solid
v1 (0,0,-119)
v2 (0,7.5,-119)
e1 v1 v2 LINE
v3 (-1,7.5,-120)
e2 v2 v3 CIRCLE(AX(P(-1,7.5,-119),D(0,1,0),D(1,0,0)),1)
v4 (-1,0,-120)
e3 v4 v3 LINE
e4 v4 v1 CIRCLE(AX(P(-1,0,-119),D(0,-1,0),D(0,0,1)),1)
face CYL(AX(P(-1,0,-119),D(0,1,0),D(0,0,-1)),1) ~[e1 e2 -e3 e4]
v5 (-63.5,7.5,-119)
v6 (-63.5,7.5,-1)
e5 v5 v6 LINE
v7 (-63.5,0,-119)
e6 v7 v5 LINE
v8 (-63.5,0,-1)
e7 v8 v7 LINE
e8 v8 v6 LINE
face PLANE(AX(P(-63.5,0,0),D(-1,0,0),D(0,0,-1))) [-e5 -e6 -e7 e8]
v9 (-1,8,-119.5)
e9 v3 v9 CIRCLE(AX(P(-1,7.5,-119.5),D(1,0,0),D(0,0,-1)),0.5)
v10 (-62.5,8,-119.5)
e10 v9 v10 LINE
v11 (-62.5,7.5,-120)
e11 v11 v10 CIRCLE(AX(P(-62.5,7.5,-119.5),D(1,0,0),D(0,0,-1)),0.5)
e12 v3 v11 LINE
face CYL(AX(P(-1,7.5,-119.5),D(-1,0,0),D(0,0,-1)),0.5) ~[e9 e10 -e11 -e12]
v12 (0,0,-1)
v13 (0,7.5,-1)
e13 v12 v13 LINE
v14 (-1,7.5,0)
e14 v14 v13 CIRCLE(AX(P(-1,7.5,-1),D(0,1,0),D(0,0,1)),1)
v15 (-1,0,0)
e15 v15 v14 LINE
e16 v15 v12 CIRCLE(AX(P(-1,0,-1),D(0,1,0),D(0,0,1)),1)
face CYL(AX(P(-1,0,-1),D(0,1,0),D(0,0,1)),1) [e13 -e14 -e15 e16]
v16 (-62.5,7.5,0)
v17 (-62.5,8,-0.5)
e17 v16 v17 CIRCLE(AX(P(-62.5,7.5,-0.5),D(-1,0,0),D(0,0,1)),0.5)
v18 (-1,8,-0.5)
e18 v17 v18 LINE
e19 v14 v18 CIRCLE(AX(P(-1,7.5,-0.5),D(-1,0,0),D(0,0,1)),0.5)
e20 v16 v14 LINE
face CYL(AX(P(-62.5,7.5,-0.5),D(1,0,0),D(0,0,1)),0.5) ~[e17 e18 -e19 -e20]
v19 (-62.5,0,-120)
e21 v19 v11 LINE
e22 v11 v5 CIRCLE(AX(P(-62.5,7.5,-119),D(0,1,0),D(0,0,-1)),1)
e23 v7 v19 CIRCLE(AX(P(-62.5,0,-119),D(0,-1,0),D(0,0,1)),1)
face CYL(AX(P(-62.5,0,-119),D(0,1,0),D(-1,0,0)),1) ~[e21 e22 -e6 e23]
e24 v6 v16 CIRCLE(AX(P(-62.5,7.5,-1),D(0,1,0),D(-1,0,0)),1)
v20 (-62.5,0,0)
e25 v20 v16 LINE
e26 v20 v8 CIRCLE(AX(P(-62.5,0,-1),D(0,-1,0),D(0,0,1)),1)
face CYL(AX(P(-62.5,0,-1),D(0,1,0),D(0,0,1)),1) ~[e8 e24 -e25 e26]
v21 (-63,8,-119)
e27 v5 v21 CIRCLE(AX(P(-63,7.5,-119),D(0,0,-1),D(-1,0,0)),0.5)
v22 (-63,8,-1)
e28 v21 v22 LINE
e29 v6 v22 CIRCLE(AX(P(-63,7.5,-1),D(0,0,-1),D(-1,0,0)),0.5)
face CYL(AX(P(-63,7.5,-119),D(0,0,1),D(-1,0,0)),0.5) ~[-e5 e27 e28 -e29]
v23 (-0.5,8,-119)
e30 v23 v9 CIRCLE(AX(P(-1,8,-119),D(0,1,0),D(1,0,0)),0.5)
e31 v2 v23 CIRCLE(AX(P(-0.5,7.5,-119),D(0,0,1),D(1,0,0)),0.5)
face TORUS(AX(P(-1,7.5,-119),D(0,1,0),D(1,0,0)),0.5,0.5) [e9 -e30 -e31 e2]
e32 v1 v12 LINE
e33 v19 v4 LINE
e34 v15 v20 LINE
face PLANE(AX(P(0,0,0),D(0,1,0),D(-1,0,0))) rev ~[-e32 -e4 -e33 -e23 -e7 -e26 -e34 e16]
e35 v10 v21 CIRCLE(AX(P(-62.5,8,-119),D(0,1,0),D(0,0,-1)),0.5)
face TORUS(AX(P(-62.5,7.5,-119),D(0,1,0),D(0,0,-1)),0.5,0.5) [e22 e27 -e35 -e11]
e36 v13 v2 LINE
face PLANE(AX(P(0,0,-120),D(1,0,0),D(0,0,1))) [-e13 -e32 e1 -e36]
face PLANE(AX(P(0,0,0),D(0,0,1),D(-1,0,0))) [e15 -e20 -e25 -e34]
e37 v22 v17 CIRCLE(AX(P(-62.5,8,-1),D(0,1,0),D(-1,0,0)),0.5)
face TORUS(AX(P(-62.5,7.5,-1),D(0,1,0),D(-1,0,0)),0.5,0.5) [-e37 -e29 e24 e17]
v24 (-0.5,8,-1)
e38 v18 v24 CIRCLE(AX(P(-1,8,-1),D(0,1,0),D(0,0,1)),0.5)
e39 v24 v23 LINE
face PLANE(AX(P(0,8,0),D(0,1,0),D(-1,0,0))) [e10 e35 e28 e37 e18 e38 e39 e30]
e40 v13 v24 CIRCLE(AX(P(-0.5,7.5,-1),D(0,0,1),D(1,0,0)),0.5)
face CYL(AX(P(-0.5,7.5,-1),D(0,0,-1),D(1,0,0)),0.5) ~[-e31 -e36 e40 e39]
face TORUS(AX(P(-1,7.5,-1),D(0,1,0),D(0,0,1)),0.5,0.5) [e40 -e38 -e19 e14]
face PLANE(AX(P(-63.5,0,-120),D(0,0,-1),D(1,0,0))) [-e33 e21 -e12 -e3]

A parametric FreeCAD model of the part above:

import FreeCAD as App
import Part
import Sketcher
from FreeCAD import Vector


def edges_at(feature, points):
    """Names of the edges that pass closest to the given points."""
    edges = feature.Shape.Edges
    near = lambda p: min(range(len(edges)), key=lambda i: edges[i].distToShape(Part.Vertex(*p))[0])
    return sorted({f"Edge{near(p) + 1}" for p in points})


def add_polygon(sketch, points):
    """Adds a closed chain of lines whose ends are joined by coincident constraints."""
    first, n = sketch.GeometryCount, len(points)
    for a, b in zip(points, points[1:] + points[:1]):
        sketch.addGeometry(Part.LineSegment(App.Vector(*a, 0), App.Vector(*b, 0)), False)
    for i in range(n):
        sketch.addConstraint(Sketcher.Constraint("Coincident", first + i, 2, first + (i + 1) % n, 1))

doc = App.newDocument("Part")
body = doc.addObject("PartDesign::Body", "Body")

# Sketch on XZ plane
sketch1 = body.newObject("Sketcher::SketchObject", "Sketch")
sketch1.AttachmentSupport = (doc.getObject("XZ_Plane"), [""])
sketch1.MapMode = "FlatFace"
add_polygon(sketch1, [(-63.5, 0), (0, 0), (0, -120), (-63.5, -120)])  # lines 0-3
sketch1.addConstraint(Sketcher.Constraint("Horizontal", 0))
sketch1.addConstraint(Sketcher.Constraint("Vertical", 1))
sketch1.addConstraint(Sketcher.Constraint("Horizontal", 2))
sketch1.addConstraint(Sketcher.Constraint("Vertical", 3))
sketch1.addConstraint(Sketcher.Constraint("Coincident", 0, 2, -1, 1))
sketch1.addConstraint(Sketcher.Constraint("DistanceY", 1, 2, 1, 1, 120.0))
sketch1.addConstraint(Sketcher.Constraint("DistanceX", 0, 1, 0, 2, 63.5))
pad1 = body.newObject("PartDesign::Pad", "Pad")
pad1.Profile = sketch1
pad1.Length = 8
pad1.Reversed = True
doc.recompute()

fillet = body.newObject("PartDesign::Fillet", "Fillet")
fillet.Base = (pad1, edges_at(pad1, [
    (0, 4, 0),
    (-63.5, 4, 0),
    (-63.5, 4, -120),
    (0, 4, -120),
]))
fillet.Radius = 1
doc.recompute()

fillet2 = body.newObject("PartDesign::Fillet", "Fillet001")
fillet2.Base = (fillet, edges_at(fillet, [
    (-0.293, 8, -0.293),
    (0, 8, -60),
    (-0.293, 8, -119.707),
    (-31.75, 8, -120),
    (-63.207, 8, -119.707),
    (-63.5, 8, -60),
    (-63.207, 8, -0.293),
    (-31.75, 8, 0),
]))
fillet2.Radius = 0.5

doc.recompute()
